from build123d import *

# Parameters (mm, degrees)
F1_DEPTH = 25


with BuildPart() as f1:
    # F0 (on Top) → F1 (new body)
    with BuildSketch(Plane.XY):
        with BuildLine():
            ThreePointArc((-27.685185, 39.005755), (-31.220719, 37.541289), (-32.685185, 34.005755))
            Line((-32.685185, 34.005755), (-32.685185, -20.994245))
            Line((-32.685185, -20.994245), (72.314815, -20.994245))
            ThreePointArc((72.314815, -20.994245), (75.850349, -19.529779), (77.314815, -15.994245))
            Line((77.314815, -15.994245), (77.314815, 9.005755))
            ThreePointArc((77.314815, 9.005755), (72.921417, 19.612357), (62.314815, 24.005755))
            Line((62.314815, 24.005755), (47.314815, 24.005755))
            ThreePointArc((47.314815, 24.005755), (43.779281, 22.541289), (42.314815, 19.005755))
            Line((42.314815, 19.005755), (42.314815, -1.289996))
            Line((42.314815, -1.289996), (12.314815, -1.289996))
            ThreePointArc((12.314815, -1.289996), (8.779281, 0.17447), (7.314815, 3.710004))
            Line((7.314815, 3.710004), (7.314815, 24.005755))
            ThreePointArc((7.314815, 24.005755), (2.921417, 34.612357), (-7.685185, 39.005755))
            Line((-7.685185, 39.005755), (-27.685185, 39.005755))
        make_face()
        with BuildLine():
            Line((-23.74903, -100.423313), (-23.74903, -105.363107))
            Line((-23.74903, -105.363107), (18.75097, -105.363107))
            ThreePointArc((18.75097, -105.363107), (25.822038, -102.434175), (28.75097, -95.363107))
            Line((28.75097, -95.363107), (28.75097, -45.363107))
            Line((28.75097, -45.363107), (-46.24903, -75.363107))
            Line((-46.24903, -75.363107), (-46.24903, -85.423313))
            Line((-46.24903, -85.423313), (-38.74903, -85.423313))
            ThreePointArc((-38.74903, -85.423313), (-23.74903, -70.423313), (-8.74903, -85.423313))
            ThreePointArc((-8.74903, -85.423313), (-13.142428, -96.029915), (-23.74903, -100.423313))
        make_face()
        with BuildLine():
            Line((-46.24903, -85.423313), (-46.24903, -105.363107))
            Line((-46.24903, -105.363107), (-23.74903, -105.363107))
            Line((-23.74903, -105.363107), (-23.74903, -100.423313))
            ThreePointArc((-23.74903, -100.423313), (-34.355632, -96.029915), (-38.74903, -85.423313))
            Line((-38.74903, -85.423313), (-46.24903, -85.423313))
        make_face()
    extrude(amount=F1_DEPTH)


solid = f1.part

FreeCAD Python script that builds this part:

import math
import FreeCAD as App
import Part
import Sketcher
Q = App.Units.Quantity

doc = App.newDocument("Part")
body = doc.addObject("PartDesign::Body", "Body")
body.AllowCompound = True

sketch1 = body.newObject("Sketcher::SketchObject", "Sketch")
sketch1.AttachmentSupport = (doc.getObject("XY_Plane"), [""])
sketch1.MapMode = "FlatFace"
sketch1.addGeometry(Part.ArcOfCircle(Part.Circle(App.Vector(-27.7, 34, 0), App.Vector(0, 0, 1), 5), math.radians(90), math.radians(180)), False)
sketch1.addGeometry(Part.LineSegment(App.Vector(-32.7, 34, 0), App.Vector(-32.7, -21, 0)), False)
sketch1.addGeometry(Part.LineSegment(App.Vector(-32.7, -21, 0), App.Vector(72.3, -21, 0)), False)
sketch1.addGeometry(Part.ArcOfCircle(Part.Circle(App.Vector(72.3, -16, 0), App.Vector(0, 0, 1), 5), math.radians(-90), math.radians(0)), False)
sketch1.addGeometry(Part.LineSegment(App.Vector(77.3, -16, 0), App.Vector(77.3, 9, 0)), False)
sketch1.addGeometry(Part.ArcOfCircle(Part.Circle(App.Vector(62.3, 9, 0), App.Vector(0, 0, 1), 15), math.radians(0), math.radians(90)), False)
sketch1.addGeometry(Part.LineSegment(App.Vector(62.3, 24, 0), App.Vector(47.3, 24, 0)), False)
sketch1.addGeometry(Part.ArcOfCircle(Part.Circle(App.Vector(47.3, 19, 0), App.Vector(0, 0, 1), 5), math.radians(90), math.radians(180)), False)
sketch1.addGeometry(Part.LineSegment(App.Vector(42.3, 19, 0), App.Vector(42.3, -1.3, 0)), False)
sketch1.addGeometry(Part.LineSegment(App.Vector(42.3, -1.3, 0), App.Vector(12.3, -1.3, 0)), False)
sketch1.addGeometry(Part.ArcOfCircle(Part.Circle(App.Vector(12.3, 3.7, 0), App.Vector(0, 0, 1), 5), math.radians(180), math.radians(270)), False)
sketch1.addGeometry(Part.LineSegment(App.Vector(7.3, 3.7, 0), App.Vector(7.3, 24, 0)), False)
sketch1.addGeometry(Part.ArcOfCircle(Part.Circle(App.Vector(-7.7, 24, 0), App.Vector(0, 0, 1), 15), math.radians(0), math.radians(90)), False)
sketch1.addGeometry(Part.LineSegment(App.Vector(-7.7, 39, 0), App.Vector(-27.7, 39, 0)), False)
sketch1.addGeometry(Part.ArcOfCircle(Part.Circle(App.Vector(18.8, -95.4, 0), App.Vector(0, 0, 1), 10), math.radians(-90), math.radians(0)), False)
sketch1.addGeometry(Part.LineSegment(App.Vector(28.8, -95.4, 0), App.Vector(28.8, -45.4, 0)), False)
sketch1.addGeometry(Part.LineSegment(App.Vector(28.8, -45.4, 0), App.Vector(-46.2, -75.4, 0)), False)
sketch1.addGeometry(Part.LineSegment(App.Vector(-46.2, -75.4, 0), App.Vector(-46.2, -105.4, 0)), False)
sketch1.addGeometry(Part.LineSegment(App.Vector(-46.2, -105.4, 0), App.Vector(18.8, -105.4, 0)), False)
sketch1.addGeometry(Part.ArcOfCircle(Part.Circle(App.Vector(-23.7, -85.4, 0), App.Vector(0, 0, 1), 15), math.radians(0), math.radians(180)), False)
sketch1.addGeometry(Part.ArcOfCircle(Part.Circle(App.Vector(-23.7, -85.4, 0), App.Vector(0, 0, 1), 15), math.radians(-90), math.radians(0)), False)
sketch1.addGeometry(Part.ArcOfCircle(Part.Circle(App.Vector(-23.7, -85.4, 0), App.Vector(0, 0, 1), 15), math.radians(180), math.radians(270)), False)
sketch1.addConstraint(Sketcher.Constraint("Tangent", 0, 2, 1, 1))
sketch1.addConstraint(Sketcher.Constraint("Coincident", 1, 2, 2, 1))
sketch1.addConstraint(Sketcher.Constraint("Tangent", 2, 2, 3, 1))
sketch1.addConstraint(Sketcher.Constraint("Tangent", 3, 2, 4, 1))
sketch1.addConstraint(Sketcher.Constraint("Tangent", 4, 2, 5, 1))
sketch1.addConstraint(Sketcher.Constraint("Tangent", 5, 2, 6, 1))
sketch1.addConstraint(Sketcher.Constraint("Tangent", 6, 2, 7, 1))
sketch1.addConstraint(Sketcher.Constraint("Tangent", 7, 2, 8, 1))
sketch1.addConstraint(Sketcher.Constraint("Coincident", 8, 2, 9, 1))
sketch1.addConstraint(Sketcher.Constraint("Tangent", 9, 2, 10, 2))
sketch1.addConstraint(Sketcher.Constraint("Tangent", 10, 1, 11, 1))
sketch1.addConstraint(Sketcher.Constraint("Tangent", 11, 2, 12, 1))
sketch1.addConstraint(Sketcher.Constraint("Tangent", 12, 2, 13, 1))
sketch1.addConstraint(Sketcher.Constraint("Tangent", 13, 2, 0, 1))
sketch1.addConstraint(Sketcher.Constraint("Tangent", 14, 2, 15, 1))
sketch1.addConstraint(Sketcher.Constraint("Coincident", 15, 2, 16, 1))
sketch1.addConstraint(Sketcher.Constraint("Coincident", 16, 2, 17, 1))
sketch1.addConstraint(Sketcher.Constraint("Coincident", 17, 2, 18, 1))
sketch1.addConstraint(Sketcher.Constraint("Tangent", 18, 2, 14, 1))
sketch1.addConstraint(Sketcher.Constraint("Tangent", 19, 1, 20, 2))
sketch1.addConstraint(Sketcher.Constraint("Tangent", 20, 1, 21, 2))
sketch1.addConstraint(Sketcher.Constraint("Tangent", 21, 1, 19, 2))
sketch1.addConstraint(Sketcher.Constraint("Vertical", 1))
sketch1.addConstraint(Sketcher.Constraint("Horizontal", 2))
sketch1.addConstraint(Sketcher.Constraint("Vertical", 4))
sketch1.addConstraint(Sketcher.Constraint("Horizontal", 6))
sketch1.addConstraint(Sketcher.Constraint("Vertical", 8))
sketch1.addConstraint(Sketcher.Constraint("Horizontal", 9))
sketch1.addConstraint(Sketcher.Constraint("Vertical", 11))
sketch1.addConstraint(Sketcher.Constraint("Horizontal", 13))
sketch1.addConstraint(Sketcher.Constraint("Vertical", 15))
sketch1.addConstraint(Sketcher.Constraint("Vertical", 17))
sketch1.addConstraint(Sketcher.Constraint("Horizontal", 18))
sketch1.addConstraint(Sketcher.Constraint("Equal", 0, 3))
sketch1.addConstraint(Sketcher.Constraint("Equal", 3, 7))
sketch1.addConstraint(Sketcher.Constraint("Equal", 7, 10))
sketch1.addConstraint(Sketcher.Constraint("Equal", 5, 12))
sketch1.addConstraint(Sketcher.Constraint("Equal", 12, 19))
sketch1.addConstraint(Sketcher.Constraint("Horizontal", 12, 3, 5, 2))
sketch1.addConstraint(Sketcher.Constraint("Horizontal", 21, 3, 19, 1))
sketch1.addConstraint(Sketcher.Constraint("Horizontal", 19, 1, 21, 1))
sketch1.addConstraint(Sketcher.Constraint("Vertical", 21, 3, 20, 1))
sketch1.addConstraint(Sketcher.Constraint("Equal", 9, 17))
sketch1.addConstraint(Sketcher.Constraint("Radius", 0, Q("5 mm")))
sketch1.addConstraint(Sketcher.Constraint("Radius", 5, Q("14.999999 mm")))
sketch1.addConstraint(Sketcher.Constraint("Radius", 14, Q("9.999999 mm")))
sketch1.addConstraint(Sketcher.Constraint("DistanceX", 2, 1, 2, 2, Q("105 mm")))
sketch1.addConstraint(Sketcher.Constraint("DistanceX", 6, 2, 6, 1, Q("15 mm")))
sketch1.addConstraint(Sketcher.Constraint("DistanceX", 9, 2, 9, 1, Q("30 mm")))
sketch1.addConstraint(Sketcher.Constraint("DistanceX", 18, 1, 18, 2, Q("65 mm")))
sketch1.addConstraint(Sketcher.Constraint("DistanceY", 1, 2, 1, 1, Q("55 mm")))
sketch1.addConstraint(Sketcher.Constraint("DistanceY", 15, 1, 15, 2, Q("50 mm")))
sketch1.addConstraint(Sketcher.Constraint("DistanceX", 19, 3, 14, 3, Q("42.500001 mm")))
sketch1.addConstraint(Sketcher.Constraint("DistanceY", 8, 2, 8, 1, Q("20.295751 mm")))
sketch1.addConstraint(Sketcher.Constraint("DistanceX", -1, 1, 14, 3, Q("18.750971 mm")))
sketch1.addConstraint(Sketcher.Constraint("DistanceY", 14, 3, 10, 3, Q("99.073111 mm")))
sketch1.addConstraint(Sketcher.Constraint("DistanceY", 19, 3, 12, 3, Q("109.429069 mm")))
sketch1.addConstraint(Sketcher.Constraint("DistanceX", 0, 3, -1, 1, Q("27.685185 mm")))
sketch1.addConstraint(Sketcher.Constraint("DistanceY", -1, 1, 0, 3, Q("34.005755 mm")))
pad1 = body.newObject("PartDesign::Pad", "Pad")
pad1.Profile = sketch1
pad1.Length = 25

doc.recompute()
